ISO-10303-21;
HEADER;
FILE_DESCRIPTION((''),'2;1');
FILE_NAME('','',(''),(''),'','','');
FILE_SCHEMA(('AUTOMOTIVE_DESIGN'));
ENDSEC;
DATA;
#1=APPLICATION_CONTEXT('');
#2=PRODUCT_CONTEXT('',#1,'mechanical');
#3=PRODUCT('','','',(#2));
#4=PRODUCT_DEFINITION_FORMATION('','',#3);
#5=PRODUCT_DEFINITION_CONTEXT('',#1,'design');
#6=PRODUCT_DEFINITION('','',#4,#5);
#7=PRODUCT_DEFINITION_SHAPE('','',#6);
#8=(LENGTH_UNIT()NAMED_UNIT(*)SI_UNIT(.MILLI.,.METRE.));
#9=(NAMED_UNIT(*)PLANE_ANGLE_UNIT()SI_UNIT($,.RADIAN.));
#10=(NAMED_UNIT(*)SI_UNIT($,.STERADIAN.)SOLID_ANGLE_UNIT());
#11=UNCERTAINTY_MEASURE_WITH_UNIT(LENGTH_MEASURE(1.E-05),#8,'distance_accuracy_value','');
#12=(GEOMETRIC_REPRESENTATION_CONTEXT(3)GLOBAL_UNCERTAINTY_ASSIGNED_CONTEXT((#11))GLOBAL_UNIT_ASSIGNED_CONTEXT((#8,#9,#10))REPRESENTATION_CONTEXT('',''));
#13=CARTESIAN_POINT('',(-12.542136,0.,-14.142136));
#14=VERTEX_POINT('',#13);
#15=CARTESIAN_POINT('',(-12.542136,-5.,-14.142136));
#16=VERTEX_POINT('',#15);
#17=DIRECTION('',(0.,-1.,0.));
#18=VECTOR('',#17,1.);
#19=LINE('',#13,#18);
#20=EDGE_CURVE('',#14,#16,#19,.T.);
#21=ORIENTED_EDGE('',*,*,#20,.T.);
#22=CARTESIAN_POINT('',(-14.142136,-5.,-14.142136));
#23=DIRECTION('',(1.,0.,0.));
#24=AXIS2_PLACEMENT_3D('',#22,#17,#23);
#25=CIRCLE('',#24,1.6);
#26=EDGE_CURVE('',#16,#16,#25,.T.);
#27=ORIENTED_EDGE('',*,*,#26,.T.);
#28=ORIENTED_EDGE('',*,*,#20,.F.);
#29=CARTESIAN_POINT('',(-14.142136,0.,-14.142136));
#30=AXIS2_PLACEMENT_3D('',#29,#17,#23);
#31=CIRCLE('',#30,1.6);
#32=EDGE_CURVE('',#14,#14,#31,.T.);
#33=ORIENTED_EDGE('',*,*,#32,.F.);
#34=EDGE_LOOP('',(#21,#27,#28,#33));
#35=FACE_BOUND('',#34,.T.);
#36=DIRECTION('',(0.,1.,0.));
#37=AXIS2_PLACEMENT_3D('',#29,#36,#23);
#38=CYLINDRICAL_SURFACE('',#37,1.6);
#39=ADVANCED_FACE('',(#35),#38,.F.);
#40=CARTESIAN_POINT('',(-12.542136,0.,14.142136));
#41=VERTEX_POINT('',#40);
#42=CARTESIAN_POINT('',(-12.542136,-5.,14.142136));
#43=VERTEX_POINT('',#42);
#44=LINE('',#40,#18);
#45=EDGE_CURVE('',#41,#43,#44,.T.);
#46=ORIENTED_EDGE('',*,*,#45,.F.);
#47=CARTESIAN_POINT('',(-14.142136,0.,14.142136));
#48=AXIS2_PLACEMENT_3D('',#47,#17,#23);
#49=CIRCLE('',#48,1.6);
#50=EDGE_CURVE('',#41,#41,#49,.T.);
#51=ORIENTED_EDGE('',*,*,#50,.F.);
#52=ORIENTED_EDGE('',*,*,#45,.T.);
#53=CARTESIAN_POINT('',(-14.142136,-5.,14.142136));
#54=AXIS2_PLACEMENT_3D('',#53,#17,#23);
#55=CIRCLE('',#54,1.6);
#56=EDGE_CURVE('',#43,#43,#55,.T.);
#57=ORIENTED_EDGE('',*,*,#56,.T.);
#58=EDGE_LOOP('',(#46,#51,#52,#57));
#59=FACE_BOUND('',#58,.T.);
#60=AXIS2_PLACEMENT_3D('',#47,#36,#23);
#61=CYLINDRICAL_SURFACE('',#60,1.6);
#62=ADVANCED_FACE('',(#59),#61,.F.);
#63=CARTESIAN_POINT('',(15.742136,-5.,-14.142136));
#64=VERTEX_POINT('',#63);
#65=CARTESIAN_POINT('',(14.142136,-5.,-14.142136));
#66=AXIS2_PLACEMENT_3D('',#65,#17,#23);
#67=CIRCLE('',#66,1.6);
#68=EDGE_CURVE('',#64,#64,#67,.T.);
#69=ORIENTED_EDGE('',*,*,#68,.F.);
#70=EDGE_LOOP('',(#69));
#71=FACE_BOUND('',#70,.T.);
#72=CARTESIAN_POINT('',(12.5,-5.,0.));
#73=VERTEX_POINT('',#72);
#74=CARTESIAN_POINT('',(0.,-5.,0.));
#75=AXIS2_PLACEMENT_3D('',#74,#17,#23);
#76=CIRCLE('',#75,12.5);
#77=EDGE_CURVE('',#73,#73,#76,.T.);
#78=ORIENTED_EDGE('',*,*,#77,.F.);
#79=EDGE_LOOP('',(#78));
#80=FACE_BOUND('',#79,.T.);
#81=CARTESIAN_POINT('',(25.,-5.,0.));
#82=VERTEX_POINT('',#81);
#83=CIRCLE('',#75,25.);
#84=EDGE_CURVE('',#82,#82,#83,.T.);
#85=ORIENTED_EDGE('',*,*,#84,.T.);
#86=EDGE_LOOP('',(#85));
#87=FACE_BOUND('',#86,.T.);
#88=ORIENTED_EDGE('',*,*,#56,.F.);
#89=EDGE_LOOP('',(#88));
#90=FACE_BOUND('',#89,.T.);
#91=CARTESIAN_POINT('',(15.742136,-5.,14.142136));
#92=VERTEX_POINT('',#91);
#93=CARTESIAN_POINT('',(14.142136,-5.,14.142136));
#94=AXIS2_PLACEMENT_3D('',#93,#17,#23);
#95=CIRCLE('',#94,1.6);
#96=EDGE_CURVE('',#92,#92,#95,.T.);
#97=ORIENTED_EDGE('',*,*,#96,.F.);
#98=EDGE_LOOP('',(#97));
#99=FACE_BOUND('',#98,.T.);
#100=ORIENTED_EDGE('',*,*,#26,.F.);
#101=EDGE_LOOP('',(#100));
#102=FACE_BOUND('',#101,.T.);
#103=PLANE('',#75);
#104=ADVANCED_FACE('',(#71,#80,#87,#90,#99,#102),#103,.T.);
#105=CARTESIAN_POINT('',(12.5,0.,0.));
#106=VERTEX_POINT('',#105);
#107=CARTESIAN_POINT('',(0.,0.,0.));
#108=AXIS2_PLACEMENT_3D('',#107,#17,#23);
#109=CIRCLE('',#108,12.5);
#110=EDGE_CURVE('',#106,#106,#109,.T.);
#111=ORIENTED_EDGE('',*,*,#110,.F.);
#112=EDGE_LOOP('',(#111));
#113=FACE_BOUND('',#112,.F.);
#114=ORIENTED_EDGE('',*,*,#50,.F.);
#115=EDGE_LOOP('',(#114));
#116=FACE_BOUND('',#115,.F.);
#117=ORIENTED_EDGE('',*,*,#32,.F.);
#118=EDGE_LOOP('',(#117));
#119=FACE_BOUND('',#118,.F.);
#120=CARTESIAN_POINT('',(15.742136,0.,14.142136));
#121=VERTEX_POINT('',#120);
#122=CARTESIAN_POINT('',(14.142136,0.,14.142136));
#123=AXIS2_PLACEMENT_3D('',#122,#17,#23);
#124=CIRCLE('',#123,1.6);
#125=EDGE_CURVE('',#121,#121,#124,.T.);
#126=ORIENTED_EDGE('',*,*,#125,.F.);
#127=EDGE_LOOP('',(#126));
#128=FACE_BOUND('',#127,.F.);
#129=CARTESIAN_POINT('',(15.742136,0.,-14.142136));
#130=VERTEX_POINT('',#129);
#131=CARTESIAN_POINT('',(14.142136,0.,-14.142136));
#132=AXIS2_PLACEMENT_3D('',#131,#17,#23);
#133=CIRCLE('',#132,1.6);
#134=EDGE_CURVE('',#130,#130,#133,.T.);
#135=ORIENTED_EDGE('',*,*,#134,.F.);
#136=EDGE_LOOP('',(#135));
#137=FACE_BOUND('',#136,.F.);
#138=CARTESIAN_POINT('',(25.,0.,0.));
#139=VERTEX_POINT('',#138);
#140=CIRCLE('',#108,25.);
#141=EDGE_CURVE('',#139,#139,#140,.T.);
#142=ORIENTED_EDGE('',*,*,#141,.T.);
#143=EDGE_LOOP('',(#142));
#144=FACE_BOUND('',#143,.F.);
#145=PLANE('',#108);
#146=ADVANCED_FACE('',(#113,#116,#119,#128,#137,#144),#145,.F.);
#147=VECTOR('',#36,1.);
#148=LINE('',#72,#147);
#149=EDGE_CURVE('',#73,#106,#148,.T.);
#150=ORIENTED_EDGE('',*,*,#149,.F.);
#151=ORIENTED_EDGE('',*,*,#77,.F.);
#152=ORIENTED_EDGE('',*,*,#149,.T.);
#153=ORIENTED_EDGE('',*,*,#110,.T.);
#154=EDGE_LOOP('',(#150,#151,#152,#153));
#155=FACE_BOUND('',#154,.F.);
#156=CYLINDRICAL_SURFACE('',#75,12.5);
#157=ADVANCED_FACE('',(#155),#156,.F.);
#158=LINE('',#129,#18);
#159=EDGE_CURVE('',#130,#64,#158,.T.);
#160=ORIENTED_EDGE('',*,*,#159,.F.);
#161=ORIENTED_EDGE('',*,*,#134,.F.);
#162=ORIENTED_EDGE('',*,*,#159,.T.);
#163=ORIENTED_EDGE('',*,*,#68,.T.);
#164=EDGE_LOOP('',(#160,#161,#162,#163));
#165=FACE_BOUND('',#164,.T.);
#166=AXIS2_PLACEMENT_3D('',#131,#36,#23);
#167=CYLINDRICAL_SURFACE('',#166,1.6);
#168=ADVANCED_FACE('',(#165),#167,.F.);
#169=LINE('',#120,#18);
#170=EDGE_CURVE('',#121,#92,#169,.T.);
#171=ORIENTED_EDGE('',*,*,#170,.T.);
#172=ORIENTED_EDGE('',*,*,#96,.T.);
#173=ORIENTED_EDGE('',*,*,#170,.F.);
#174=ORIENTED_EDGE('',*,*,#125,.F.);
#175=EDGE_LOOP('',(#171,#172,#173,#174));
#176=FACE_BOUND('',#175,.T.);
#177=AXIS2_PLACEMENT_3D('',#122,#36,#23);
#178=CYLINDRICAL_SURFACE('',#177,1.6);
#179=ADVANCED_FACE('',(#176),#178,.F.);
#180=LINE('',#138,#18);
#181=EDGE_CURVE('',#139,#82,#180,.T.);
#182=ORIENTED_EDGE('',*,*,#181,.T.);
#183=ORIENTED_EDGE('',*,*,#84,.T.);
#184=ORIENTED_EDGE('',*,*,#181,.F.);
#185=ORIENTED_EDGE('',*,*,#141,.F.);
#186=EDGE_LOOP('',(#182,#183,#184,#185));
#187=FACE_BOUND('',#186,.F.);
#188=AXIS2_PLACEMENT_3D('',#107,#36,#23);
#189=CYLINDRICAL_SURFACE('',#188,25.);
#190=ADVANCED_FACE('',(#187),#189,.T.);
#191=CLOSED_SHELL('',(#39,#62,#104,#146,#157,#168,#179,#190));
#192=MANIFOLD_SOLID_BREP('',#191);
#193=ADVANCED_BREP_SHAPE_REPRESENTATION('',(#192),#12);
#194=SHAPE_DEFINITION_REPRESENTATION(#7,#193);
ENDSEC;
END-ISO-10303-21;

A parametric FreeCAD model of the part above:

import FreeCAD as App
import Part
import Sketcher

doc = App.newDocument("Part")
params = doc.addObject("Spreadsheet::Sheet", "Params")
for row, (alias, value) in enumerate([
    ("sketch1_diameter", "50 mm"),
    ("sketch1_diameter2", "3.2 mm"),
    ("pad1_length", "5 mm"),
    ("sketch2_diameter", "25 mm"),
    ("pocket1_length", "51.2 mm"),
], start=1):
    params.set(f"A{row}", alias)
    params.set(f"B{row}", "=" + value)
    params.setAlias(f"B{row}", alias)

body = doc.addObject("PartDesign::Body", "Body")

# Sketch on XZ plane
sketch1 = body.newObject("Sketcher::SketchObject", "Sketch")
sketch1.AttachmentSupport = (doc.getObject("XZ_Plane"), [""])
sketch1.MapMode = "FlatFace"
sketch1.addGeometry([
    Part.Circle(App.Vector(0, 0, 0), App.Vector(0, 0, 1), 25),  # 0
    Part.Circle(App.Vector(-14.142136, -14.142136, 0), App.Vector(0, 0, 1), 1.6),  # 1
    Part.Circle(App.Vector(14.142136, -14.142136, 0), App.Vector(0, 0, 1), 1.6),  # 2
    Part.Circle(App.Vector(-14.142136, 14.142136, 0), App.Vector(0, 0, 1), 1.6),  # 3
    Part.Circle(App.Vector(14.142136, 14.142136, 0), App.Vector(0, 0, 1), 1.6),  # 4
], False)
sketch1.addConstraint([
    Sketcher.Constraint("Coincident", 0, 3, -1, 1),
    Sketcher.Constraint("Equal", 1, 2),
    Sketcher.Constraint("Equal", 2, 3),
    Sketcher.Constraint("Equal", 3, 4),
    Sketcher.Constraint("Symmetric", 2, 3, 3, 3, -1, 1),
    Sketcher.Constraint("Symmetric", 1, 3, 4, 3, -1, 1),
    Sketcher.Constraint("Symmetric", 1, 3, 2, 3, -2),
    Sketcher.Constraint("Diameter", 0, 50.0),
    Sketcher.Constraint("Diameter", 1, 3.2),
    Sketcher.Constraint("DistanceX", 1, 3, -1, 1, 14.142136),
    Sketcher.Constraint("DistanceY", 1, 3, -1, 1, 14.142136),
])
sketch1.setExpression("Constraints[7]", "Params.sketch1_diameter")
sketch1.setExpression("Constraints[8]", "Params.sketch1_diameter2")
pad1 = body.newObject("PartDesign::Pad", "Pad")
pad1.Profile = sketch1
pad1.setExpression("Length", "Params.pad1_length")

# Sketch on XZ plane
sketch2 = body.newObject("Sketcher::SketchObject", "Sketch001")
sketch2.AttachmentSupport = (doc.getObject("XZ_Plane"), [""])
sketch2.MapMode = "FlatFace"
sketch2.AttachmentOffset = App.Placement(App.Vector(0, 0, 5), App.Rotation())
sketch2.addGeometry(Part.Circle(App.Vector(0, 0, 0), App.Vector(0, 0, 1), 12.5), False)
sketch2.addConstraint([
    Sketcher.Constraint("Coincident", 0, 3, -1, 1),
    Sketcher.Constraint("Diameter", 0, 25.0),
])
sketch2.setExpression("Constraints[1]", "Params.sketch2_diameter")
pocket1 = body.newObject("PartDesign::Pocket", "Pocket")
pocket1.Profile = sketch2
pocket1.setExpression("Length", "Params.pocket1_length")

doc.recompute()
